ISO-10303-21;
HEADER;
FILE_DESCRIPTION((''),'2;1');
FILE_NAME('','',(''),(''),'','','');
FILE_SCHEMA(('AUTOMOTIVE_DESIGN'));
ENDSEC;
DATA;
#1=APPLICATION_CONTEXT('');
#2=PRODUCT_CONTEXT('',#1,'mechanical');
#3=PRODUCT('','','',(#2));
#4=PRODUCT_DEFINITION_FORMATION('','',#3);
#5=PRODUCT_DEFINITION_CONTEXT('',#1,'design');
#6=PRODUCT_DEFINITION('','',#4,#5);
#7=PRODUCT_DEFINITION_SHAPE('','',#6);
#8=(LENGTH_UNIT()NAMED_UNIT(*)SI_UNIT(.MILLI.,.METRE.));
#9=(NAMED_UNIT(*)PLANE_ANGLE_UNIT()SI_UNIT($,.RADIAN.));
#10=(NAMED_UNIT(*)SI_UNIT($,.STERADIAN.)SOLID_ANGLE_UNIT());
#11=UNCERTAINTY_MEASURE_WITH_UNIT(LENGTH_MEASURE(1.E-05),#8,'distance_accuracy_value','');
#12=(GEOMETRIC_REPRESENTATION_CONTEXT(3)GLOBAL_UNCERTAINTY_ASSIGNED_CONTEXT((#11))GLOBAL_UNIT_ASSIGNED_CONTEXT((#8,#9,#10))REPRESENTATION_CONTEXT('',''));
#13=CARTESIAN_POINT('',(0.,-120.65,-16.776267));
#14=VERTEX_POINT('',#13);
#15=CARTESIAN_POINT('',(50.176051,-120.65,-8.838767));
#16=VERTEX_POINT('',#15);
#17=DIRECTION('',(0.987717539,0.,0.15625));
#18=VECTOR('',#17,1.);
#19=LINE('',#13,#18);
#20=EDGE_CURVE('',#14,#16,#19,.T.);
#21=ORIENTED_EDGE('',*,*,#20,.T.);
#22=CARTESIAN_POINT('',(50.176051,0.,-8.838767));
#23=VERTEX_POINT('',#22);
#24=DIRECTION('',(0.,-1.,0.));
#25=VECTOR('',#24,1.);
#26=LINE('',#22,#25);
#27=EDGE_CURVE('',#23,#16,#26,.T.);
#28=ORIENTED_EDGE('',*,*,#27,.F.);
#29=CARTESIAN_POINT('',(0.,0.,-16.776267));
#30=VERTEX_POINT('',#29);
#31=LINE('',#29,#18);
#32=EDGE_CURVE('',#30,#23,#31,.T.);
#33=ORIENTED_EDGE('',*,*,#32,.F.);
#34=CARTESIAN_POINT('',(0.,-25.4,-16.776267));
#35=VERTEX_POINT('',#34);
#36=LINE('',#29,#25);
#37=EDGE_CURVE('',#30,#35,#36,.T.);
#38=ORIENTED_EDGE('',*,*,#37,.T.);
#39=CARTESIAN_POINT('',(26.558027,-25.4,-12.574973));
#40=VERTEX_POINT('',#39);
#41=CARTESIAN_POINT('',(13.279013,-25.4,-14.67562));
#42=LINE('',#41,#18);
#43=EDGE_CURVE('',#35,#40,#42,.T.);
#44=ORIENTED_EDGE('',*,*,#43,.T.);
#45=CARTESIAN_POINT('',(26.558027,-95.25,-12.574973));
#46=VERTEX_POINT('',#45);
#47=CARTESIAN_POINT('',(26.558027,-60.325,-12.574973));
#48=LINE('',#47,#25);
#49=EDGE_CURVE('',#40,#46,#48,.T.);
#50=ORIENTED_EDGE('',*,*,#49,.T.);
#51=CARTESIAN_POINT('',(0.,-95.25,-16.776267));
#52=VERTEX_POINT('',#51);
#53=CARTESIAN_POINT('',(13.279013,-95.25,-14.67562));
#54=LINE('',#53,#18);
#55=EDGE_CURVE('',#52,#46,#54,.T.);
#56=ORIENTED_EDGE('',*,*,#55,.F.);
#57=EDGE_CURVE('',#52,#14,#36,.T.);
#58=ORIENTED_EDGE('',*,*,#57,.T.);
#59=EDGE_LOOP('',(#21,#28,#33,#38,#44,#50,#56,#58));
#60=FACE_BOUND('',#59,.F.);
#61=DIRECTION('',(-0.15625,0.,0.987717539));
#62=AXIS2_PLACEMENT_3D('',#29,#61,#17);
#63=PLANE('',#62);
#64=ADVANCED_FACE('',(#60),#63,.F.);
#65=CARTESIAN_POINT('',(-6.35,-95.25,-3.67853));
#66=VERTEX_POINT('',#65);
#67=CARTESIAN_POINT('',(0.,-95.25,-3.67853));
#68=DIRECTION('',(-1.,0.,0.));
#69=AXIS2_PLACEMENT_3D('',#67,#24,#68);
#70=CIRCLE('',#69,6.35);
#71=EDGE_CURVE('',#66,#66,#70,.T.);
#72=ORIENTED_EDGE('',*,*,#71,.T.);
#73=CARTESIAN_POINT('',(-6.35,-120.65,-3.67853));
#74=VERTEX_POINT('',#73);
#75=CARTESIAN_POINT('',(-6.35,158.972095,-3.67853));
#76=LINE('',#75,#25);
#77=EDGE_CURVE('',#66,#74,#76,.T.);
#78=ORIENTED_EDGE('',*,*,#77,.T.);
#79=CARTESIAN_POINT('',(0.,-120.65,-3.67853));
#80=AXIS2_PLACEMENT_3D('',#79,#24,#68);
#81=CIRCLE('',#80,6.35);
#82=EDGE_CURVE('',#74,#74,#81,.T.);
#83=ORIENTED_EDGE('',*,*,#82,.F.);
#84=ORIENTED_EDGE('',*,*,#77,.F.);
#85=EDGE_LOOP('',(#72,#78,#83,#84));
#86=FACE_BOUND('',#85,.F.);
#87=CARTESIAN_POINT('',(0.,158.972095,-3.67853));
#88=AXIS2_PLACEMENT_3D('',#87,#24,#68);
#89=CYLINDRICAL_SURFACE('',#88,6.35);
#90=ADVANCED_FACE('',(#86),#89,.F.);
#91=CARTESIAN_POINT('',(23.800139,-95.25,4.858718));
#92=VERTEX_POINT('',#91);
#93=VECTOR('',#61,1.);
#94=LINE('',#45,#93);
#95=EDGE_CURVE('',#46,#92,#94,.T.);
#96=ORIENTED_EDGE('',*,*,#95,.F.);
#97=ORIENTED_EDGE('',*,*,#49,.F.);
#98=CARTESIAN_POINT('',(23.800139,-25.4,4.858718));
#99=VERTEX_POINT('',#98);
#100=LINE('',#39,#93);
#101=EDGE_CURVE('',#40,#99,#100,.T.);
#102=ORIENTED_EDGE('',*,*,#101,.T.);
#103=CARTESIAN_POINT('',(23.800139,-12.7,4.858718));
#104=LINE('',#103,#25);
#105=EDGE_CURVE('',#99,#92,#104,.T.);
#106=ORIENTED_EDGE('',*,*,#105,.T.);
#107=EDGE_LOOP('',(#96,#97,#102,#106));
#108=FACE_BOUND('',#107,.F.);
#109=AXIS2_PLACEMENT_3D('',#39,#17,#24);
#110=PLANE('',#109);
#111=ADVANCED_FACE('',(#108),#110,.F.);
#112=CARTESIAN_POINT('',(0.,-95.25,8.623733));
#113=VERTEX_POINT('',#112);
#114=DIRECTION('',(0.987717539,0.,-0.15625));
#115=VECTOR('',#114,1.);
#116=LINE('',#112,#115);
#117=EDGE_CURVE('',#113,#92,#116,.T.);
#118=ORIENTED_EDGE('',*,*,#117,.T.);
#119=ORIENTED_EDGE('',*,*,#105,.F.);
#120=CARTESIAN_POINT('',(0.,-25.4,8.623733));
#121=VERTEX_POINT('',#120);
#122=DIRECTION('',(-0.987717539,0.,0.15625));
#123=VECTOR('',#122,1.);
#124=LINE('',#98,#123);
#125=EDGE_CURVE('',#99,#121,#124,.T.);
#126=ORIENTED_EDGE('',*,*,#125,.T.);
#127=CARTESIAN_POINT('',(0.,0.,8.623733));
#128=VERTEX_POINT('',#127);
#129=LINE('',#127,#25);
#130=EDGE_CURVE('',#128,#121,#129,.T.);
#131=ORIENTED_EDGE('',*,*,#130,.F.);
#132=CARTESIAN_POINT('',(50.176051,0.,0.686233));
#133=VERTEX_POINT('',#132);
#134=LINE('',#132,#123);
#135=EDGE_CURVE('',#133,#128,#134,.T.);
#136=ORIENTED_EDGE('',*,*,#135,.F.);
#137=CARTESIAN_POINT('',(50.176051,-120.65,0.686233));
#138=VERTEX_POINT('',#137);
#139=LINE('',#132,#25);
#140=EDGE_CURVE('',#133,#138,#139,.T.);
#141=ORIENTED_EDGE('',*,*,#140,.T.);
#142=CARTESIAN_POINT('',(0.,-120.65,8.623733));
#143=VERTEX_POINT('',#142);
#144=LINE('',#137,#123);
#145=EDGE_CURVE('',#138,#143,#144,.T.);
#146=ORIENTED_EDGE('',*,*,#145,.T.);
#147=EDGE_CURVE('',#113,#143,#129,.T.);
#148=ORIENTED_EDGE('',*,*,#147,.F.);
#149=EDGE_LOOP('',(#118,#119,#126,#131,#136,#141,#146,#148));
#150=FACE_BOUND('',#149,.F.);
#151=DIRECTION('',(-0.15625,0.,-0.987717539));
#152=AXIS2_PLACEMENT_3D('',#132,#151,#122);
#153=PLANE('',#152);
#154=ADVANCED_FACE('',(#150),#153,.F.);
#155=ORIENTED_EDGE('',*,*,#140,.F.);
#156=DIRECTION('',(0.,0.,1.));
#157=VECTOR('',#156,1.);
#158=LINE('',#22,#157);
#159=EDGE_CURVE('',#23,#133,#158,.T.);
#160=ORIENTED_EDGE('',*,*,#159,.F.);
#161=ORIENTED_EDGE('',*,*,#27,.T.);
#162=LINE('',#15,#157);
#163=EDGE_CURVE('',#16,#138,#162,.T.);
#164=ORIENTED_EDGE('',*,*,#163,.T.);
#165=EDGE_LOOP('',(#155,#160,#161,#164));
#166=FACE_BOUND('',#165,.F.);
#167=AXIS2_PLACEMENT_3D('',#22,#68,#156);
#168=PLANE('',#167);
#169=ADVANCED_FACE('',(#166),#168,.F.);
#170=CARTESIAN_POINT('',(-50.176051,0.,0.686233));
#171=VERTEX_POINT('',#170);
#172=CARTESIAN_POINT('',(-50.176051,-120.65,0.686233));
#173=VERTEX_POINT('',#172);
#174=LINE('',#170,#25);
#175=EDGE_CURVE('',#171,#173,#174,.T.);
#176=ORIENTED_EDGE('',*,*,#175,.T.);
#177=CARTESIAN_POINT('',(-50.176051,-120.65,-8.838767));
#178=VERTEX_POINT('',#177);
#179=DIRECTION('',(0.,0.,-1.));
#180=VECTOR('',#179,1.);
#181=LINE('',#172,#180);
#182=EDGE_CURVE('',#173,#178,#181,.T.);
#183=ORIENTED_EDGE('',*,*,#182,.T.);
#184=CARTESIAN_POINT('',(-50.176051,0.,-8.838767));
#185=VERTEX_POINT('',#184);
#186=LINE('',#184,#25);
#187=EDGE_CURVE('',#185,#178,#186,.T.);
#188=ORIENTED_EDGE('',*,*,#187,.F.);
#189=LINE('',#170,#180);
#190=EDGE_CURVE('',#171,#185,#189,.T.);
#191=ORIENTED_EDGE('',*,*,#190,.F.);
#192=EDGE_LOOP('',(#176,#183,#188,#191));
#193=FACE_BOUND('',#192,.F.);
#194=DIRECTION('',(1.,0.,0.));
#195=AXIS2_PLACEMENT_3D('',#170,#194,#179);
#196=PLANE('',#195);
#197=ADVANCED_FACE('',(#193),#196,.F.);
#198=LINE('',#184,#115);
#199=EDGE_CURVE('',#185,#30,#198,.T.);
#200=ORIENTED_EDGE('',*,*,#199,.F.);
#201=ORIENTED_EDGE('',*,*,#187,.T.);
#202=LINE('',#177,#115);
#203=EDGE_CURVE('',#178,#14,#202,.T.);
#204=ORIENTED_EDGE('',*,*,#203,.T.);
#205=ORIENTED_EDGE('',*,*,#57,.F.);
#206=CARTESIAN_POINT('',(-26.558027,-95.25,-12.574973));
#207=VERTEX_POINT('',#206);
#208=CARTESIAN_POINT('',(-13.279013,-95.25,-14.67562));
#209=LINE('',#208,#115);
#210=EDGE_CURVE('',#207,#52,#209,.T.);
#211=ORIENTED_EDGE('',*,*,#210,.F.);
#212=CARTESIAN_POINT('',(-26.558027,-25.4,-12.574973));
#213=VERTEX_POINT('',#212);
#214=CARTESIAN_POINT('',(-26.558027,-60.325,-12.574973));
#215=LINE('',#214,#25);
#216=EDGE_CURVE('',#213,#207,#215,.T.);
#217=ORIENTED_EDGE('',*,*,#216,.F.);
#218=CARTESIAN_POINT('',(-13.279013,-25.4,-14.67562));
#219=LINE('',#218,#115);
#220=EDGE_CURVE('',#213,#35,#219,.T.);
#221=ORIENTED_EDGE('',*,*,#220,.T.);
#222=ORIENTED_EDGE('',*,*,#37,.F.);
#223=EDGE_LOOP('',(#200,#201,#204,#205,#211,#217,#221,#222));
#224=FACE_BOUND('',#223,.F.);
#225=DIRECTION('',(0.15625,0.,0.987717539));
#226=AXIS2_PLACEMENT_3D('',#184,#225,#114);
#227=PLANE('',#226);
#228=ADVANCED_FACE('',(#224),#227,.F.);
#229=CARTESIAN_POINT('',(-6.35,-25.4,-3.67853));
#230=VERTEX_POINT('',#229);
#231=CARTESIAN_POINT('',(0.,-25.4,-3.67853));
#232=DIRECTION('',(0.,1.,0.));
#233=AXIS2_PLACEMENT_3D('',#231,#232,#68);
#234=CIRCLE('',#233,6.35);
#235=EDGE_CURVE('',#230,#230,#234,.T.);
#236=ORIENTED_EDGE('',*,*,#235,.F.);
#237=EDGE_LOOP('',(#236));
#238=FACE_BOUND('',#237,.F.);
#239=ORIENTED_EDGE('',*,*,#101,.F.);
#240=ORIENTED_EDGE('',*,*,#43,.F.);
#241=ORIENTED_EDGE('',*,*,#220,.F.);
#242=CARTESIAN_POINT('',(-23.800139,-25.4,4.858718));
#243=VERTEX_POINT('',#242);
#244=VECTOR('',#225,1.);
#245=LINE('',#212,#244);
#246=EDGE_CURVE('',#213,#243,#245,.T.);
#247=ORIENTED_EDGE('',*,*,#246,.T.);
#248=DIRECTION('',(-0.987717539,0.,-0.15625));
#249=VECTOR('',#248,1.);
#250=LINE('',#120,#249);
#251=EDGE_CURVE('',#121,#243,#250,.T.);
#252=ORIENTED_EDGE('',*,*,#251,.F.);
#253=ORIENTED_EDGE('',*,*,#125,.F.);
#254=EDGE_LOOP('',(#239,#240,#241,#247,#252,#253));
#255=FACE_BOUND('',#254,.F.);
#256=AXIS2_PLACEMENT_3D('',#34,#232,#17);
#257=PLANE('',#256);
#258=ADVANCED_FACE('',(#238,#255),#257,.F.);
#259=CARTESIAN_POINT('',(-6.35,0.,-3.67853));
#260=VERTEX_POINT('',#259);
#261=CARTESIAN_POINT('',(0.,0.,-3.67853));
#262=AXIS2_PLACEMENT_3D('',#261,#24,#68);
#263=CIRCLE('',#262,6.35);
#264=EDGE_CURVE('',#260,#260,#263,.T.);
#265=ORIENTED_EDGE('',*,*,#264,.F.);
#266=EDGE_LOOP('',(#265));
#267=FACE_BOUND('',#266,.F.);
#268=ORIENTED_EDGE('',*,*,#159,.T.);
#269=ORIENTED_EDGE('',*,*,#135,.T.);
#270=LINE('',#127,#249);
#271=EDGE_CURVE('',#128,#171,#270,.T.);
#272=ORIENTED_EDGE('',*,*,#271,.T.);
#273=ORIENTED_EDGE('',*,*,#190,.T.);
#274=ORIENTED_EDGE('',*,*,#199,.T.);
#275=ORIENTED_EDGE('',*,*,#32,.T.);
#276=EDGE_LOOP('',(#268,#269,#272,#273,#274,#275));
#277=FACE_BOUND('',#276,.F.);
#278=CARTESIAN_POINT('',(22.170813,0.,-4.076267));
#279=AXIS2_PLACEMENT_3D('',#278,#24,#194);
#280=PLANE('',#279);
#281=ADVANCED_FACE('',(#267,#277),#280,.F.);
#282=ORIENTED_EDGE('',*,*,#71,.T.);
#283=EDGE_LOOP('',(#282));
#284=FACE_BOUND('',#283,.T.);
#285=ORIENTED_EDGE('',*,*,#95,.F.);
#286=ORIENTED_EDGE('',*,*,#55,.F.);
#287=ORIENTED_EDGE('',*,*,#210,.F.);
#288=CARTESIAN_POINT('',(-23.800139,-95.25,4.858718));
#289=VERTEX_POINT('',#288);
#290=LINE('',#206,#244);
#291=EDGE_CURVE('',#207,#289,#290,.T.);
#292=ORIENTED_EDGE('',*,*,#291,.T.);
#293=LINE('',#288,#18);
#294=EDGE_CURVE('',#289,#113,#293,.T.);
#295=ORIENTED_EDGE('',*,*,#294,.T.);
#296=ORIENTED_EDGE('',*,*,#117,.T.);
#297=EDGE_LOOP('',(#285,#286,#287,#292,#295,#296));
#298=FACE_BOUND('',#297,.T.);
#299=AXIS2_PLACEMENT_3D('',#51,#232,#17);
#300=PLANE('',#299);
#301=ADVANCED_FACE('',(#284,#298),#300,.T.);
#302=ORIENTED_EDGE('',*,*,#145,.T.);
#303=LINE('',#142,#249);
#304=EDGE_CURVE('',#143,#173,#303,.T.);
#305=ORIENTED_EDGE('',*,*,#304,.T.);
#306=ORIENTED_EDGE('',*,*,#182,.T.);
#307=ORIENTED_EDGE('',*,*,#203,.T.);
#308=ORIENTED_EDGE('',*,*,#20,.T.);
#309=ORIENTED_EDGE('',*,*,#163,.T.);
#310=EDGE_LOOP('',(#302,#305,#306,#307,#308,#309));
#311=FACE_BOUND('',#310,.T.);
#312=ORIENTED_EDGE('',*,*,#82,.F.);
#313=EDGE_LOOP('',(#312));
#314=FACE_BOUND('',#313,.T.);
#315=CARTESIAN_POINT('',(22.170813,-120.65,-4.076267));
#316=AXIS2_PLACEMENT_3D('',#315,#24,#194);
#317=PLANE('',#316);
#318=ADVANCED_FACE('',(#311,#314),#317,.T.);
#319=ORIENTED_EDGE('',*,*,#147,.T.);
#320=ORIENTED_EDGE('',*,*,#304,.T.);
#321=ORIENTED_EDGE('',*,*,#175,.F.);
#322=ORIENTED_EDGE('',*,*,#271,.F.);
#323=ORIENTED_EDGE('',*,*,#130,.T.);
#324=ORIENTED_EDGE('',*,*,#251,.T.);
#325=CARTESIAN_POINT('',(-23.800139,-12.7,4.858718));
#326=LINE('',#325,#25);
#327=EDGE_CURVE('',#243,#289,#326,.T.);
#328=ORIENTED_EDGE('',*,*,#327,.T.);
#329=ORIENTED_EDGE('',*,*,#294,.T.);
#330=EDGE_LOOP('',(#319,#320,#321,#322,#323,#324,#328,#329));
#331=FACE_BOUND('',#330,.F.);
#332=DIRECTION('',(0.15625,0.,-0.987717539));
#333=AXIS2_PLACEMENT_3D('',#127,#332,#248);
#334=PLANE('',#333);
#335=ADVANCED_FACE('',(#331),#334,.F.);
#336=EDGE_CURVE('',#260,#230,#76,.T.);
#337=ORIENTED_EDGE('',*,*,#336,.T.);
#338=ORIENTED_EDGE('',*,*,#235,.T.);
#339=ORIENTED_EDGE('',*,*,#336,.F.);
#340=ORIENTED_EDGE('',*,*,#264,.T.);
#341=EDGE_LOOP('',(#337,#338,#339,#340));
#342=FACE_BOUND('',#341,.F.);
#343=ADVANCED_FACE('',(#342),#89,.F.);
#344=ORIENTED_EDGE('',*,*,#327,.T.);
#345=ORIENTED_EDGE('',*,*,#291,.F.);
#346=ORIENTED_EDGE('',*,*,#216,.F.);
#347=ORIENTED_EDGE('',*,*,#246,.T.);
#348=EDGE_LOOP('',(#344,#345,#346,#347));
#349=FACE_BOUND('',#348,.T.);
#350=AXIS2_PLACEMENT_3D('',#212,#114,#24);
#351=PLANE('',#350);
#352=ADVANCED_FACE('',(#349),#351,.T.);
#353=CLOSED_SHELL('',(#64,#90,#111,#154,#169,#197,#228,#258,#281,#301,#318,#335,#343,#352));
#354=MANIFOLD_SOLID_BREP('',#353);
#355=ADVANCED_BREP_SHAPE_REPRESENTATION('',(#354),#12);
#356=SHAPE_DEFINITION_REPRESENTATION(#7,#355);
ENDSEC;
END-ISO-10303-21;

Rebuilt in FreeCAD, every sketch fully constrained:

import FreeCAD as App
import Part
import Sketcher
Q = App.Units.Quantity

doc = App.newDocument("Part")
body = doc.addObject("PartDesign::Body", "Body")

sketch1 = doc.addObject("Sketcher::SketchObject", "Sketch")
body.addObject(sketch1)
sketch1.AttachmentSupport = (doc.XZ_Plane, [""])
sketch1.MapMode = "FlatFace"
sketch1.addGeometry(Part.LineSegment(App.Vector(-50, 1, 0), App.Vector(-50, -9, 0)), False)
sketch1.addGeometry(Part.LineSegment(App.Vector(-50, -9, 0), App.Vector(0, -17, 0)), False)
sketch1.addGeometry(Part.LineSegment(App.Vector(0, -17, 0), App.Vector(0, 9, 0)), False)
sketch1.addGeometry(Part.LineSegment(App.Vector(0, 9, 0), App.Vector(-50, 1, 0)), False)
sketch1.addConstraint(Sketcher.Constraint("Coincident", 0, 2, 1, 1))
sketch1.addConstraint(Sketcher.Constraint("Coincident", 1, 2, 2, 1))
sketch1.addConstraint(Sketcher.Constraint("Coincident", 2, 2, 3, 1))
sketch1.addConstraint(Sketcher.Constraint("Coincident", 3, 2, 0, 1))
sketch1.addConstraint(Sketcher.Constraint("Vertical", 0))
sketch1.addConstraint(Sketcher.Constraint("Vertical", 2))
sketch1.addConstraint(Sketcher.Constraint("PointOnObject", 1, 2, -2))
sketch1.addConstraint(Sketcher.Constraint("Equal", 1, 3))
sketch1.addConstraint(Sketcher.Constraint("DistanceY", 2, 1, 2, 2, Q("1 in")))
sketch1.addConstraint(Sketcher.Constraint("Distance", 1, Q("2 in")))
sketch1.addConstraint(Sketcher.Constraint("DistanceY", 0, 2, 0, 1, Q("0.375 in")))
sketch1.addConstraint(Sketcher.Constraint("DistanceY", 0, 2, -1, 1, Q("8.838767 mm")))
pad1 = doc.addObject("PartDesign::Pad", "Pad")
body.addObject(pad1)
pad1.Profile = sketch1
pad1.Length = Q("4.75 in")

sketch2 = doc.addObject("Sketcher::SketchObject", "Sketch001")
body.addObject(sketch2)
sketch2.AttachmentSupport = (doc.XZ_Plane, [""])
sketch2.MapMode = "FlatFace"
sketch2.addGeometry(Part.LineSegment(App.Vector(0, 9, 0), App.Vector(0, -17, 0)), False)
sketch2.addGeometry(Part.LineSegment(App.Vector(0, -17, 0), App.Vector(50, -9, 0)), False)
sketch2.addGeometry(Part.LineSegment(App.Vector(50, -9, 0), App.Vector(50, 1, 0)), False)
sketch2.addGeometry(Part.LineSegment(App.Vector(50, 1, 0), App.Vector(0, 9, 0)), False)
sketch2.addConstraint(Sketcher.Constraint("Coincident", 0, 2, 1, 1))
sketch2.addConstraint(Sketcher.Constraint("Coincident", 1, 2, 2, 1))
sketch2.addConstraint(Sketcher.Constraint("Coincident", 2, 2, 3, 1))
sketch2.addConstraint(Sketcher.Constraint("Coincident", 3, 2, 0, 1))
sketch2.addConstraint(Sketcher.Constraint("Vertical", 0))
sketch2.addConstraint(Sketcher.Constraint("Vertical", 2))
sketch2.addConstraint(Sketcher.Constraint("PointOnObject", 0, 2, -2))
sketch2.addConstraint(Sketcher.Constraint("Equal", 1, 3))
sketch2.addConstraint(Sketcher.Constraint("DistanceY", 0, 2, 0, 1, Q("1 in")))
sketch2.addConstraint(Sketcher.Constraint("Distance", 1, Q("2 in")))
sketch2.addConstraint(Sketcher.Constraint("DistanceY", 2, 1, 2, 2, Q("0.375 in")))
sketch2.addConstraint(Sketcher.Constraint("DistanceY", 0, 2, -1, 1, Q("16.776267 mm")))
pad2 = doc.addObject("PartDesign::Pad", "Pad001")
body.addObject(pad2)
pad2.Profile = sketch2
pad2.Length = Q("4.75 in")

sketch3 = doc.addObject("Sketcher::SketchObject", "Sketch002")
body.addObject(sketch3)
sketch3.AttachmentSupport = (doc.XZ_Plane, [""])
sketch3.MapMode = "FlatFace"
sketch3.addGeometry(Part.Circle(App.Vector(0, -4, 0), App.Vector(0, 0, 1), 6), False)
sketch3.addConstraint(Sketcher.Constraint("PointOnObject", 0, 3, -2))
sketch3.addConstraint(Sketcher.Constraint("Diameter", 0, Q("0.5 in")))
sketch3.addConstraint(Sketcher.Constraint("DistanceY", 0, 3, -1, 1, Q("3.67853 mm")))
doc.recompute()
hole = doc.addObject("PartDesign::Hole", "Hole")
body.addObject(hole)
hole.Profile = sketch3
hole.ThreadType = "None"
hole.Diameter = Q("0.5 in")
hole.DepthType = "ThroughAll"
hole.Reversed = True

sketch4 = doc.addObject("Sketcher::SketchObject", "Sketch003")
body.addObject(sketch4)
sketch4.Placement = App.Placement(App.Vector(-2.589096, 0, -16.36669), App.Rotation(App.Vector(0.987717539, 0, -0.15625), App.Vector(0, -0.999999999, 0), App.Vector(-0.15625, 0, -0.987717539), "ZXY"))
sketch4.addGeometry(Part.LineSegment(App.Vector(-24, 95, 0), App.Vector(-24, 25, 0)), False)
sketch4.addGeometry(Part.LineSegment(App.Vector(-24, 25, 0), App.Vector(3, 25, 0)), False)
sketch4.addGeometry(Part.LineSegment(App.Vector(3, 25, 0), App.Vector(3, 95, 0)), False)
sketch4.addGeometry(Part.LineSegment(App.Vector(3, 95, 0), App.Vector(-24, 95, 0)), False)
sketch4.addConstraint(Sketcher.Constraint("Coincident", 0, 2, 1, 1))
sketch4.addConstraint(Sketcher.Constraint("Coincident", 1, 2, 2, 1))
sketch4.addConstraint(Sketcher.Constraint("Coincident", 2, 2, 3, 1))
sketch4.addConstraint(Sketcher.Constraint("Coincident", 3, 2, 0, 1))
sketch4.addConstraint(Sketcher.Constraint("Vertical", 0))
sketch4.addConstraint(Sketcher.Constraint("Horizontal", 1))
sketch4.addConstraint(Sketcher.Constraint("Vertical", 2))
sketch4.addConstraint(Sketcher.Constraint("Horizontal", 3))
sketch4.addConstraint(Sketcher.Constraint("DistanceY", -1, 1, 0, 2, Q("1 in")))
sketch4.addConstraint(Sketcher.Constraint("DistanceY", 0, 2, 0, 1, Q("2.75 in")))
sketch4.addConstraint(Sketcher.Constraint("DistanceX", 1, 1, 1, 2, Q("26.888281 mm")))
sketch4.addConstraint(Sketcher.Constraint("DistanceX", 0, 2, -1, 1, Q("24.26699 mm")))
pocket1 = doc.addObject("PartDesign::Pocket", "Pocket")
body.addObject(pocket1)
pocket1.Profile = sketch4
pocket1.Type = "ThroughAll"

sketch5 = doc.addObject("Sketcher::SketchObject", "Sketch004")
body.addObject(sketch5)
sketch5.Placement = App.Placement(App.Vector(2.589096, 0, -16.36669), App.Rotation(App.Vector(0.987717539, 0, 0.15625), App.Vector(0, -0.999999999, 0), App.Vector(0.15625, 0, -0.987717539), "ZXY"))
sketch5.addGeometry(Part.LineSegment(App.Vector(-3, 95, 0), App.Vector(-3, 25, 0)), False)
sketch5.addGeometry(Part.LineSegment(App.Vector(-3, 25, 0), App.Vector(24, 25, 0)), False)
sketch5.addGeometry(Part.LineSegment(App.Vector(24, 25, 0), App.Vector(24, 95, 0)), False)
sketch5.addGeometry(Part.LineSegment(App.Vector(24, 95, 0), App.Vector(-3, 95, 0)), False)
sketch5.addConstraint(Sketcher.Constraint("Coincident", 0, 2, 1, 1))
sketch5.addConstraint(Sketcher.Constraint("Coincident", 1, 2, 2, 1))
sketch5.addConstraint(Sketcher.Constraint("Coincident", 2, 2, 3, 1))
sketch5.addConstraint(Sketcher.Constraint("Coincident", 3, 2, 0, 1))
sketch5.addConstraint(Sketcher.Constraint("Vertical", 0))
sketch5.addConstraint(Sketcher.Constraint("Horizontal", 1))
sketch5.addConstraint(Sketcher.Constraint("Vertical", 2))
sketch5.addConstraint(Sketcher.Constraint("Horizontal", 3))
sketch5.addConstraint(Sketcher.Constraint("DistanceY", -1, 1, 0, 2, Q("1 in")))
sketch5.addConstraint(Sketcher.Constraint("DistanceY", 0, 2, 0, 1, Q("2.75 in")))
sketch5.addConstraint(Sketcher.Constraint("DistanceX", 1, 1, 1, 2, Q("26.888281 mm")))
sketch5.addConstraint(Sketcher.Constraint("DistanceX", 0, 2, -1, 1, Q("2.621292 mm")))
pocket2 = doc.addObject("PartDesign::Pocket", "Pocket001")
body.addObject(pocket2)
pocket2.Profile = sketch5
pocket2.Type = "ThroughAll"

doc.recompute()
